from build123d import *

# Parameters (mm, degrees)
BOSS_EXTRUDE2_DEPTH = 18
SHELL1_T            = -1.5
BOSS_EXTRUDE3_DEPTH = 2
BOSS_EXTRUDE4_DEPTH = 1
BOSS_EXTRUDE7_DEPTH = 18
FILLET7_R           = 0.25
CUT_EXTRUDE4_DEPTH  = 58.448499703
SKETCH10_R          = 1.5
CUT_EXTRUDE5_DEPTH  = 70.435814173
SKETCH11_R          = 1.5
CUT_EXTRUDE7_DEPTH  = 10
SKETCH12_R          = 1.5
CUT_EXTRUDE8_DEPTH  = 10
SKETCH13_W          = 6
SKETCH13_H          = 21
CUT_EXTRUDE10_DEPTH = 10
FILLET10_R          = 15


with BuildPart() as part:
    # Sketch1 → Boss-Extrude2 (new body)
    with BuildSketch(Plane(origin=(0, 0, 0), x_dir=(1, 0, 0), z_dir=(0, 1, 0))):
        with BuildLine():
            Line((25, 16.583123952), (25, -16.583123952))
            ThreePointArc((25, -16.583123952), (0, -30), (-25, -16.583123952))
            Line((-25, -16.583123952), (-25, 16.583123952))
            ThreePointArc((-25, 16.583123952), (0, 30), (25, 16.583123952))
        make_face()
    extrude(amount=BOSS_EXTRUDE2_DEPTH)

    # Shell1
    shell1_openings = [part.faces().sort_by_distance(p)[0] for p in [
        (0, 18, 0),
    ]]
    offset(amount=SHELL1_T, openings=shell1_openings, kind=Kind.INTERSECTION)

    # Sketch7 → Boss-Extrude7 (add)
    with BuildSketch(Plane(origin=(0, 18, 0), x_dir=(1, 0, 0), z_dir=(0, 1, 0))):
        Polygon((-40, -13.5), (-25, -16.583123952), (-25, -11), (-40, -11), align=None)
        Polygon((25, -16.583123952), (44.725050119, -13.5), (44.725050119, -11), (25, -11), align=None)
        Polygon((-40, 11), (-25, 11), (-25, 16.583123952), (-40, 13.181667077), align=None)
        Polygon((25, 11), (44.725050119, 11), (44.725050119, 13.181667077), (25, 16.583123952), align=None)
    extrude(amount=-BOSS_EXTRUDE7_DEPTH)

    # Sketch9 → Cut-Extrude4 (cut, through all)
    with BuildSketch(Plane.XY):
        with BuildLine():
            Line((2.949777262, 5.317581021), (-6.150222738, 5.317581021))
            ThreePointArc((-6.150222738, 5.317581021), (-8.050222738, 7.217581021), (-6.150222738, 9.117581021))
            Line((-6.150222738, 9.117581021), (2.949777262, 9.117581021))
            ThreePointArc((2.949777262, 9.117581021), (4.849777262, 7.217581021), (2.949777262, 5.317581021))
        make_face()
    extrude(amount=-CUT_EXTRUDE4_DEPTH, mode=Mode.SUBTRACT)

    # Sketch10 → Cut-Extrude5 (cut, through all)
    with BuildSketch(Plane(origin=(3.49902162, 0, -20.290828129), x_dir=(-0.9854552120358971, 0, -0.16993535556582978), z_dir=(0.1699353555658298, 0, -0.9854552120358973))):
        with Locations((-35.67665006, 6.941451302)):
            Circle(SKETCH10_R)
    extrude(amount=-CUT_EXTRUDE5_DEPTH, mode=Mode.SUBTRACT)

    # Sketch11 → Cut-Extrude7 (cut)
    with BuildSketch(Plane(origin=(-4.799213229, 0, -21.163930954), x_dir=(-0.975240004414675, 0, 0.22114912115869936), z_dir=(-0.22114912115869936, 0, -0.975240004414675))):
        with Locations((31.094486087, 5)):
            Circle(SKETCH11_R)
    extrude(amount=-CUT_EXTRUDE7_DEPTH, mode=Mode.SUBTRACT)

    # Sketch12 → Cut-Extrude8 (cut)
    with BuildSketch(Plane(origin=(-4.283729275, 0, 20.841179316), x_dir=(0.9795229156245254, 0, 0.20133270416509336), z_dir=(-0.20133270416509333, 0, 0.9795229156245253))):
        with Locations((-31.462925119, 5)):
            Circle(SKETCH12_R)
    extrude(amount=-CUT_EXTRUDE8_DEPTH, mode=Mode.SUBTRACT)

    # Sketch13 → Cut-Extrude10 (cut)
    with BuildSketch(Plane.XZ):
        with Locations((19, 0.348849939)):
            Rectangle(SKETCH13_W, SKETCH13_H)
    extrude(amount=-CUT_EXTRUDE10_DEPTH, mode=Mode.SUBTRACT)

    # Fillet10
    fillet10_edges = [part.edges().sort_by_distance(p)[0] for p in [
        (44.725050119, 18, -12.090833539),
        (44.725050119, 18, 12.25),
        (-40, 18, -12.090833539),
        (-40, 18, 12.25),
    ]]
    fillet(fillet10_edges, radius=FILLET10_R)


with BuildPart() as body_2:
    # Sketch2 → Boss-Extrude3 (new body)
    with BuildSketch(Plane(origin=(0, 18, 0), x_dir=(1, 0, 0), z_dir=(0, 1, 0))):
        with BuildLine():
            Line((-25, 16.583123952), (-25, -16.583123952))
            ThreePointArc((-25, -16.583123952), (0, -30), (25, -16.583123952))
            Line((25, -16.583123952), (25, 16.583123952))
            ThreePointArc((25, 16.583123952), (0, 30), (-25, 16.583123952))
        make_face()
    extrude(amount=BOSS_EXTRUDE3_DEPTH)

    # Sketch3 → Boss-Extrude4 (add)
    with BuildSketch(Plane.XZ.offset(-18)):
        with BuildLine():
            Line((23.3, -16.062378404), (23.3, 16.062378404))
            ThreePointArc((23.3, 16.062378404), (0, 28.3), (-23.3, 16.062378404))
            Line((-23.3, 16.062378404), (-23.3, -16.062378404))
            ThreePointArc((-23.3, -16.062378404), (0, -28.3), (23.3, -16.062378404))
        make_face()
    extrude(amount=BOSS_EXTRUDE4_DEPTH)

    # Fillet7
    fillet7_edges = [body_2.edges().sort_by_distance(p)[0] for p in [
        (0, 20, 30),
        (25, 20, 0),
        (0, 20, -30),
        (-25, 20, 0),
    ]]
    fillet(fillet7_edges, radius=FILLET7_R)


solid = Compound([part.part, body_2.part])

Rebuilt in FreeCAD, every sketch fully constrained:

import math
import FreeCAD as App
import Part
import Sketcher

V = App.Vector
Q = App.Units.Quantity


def edges_at(feature, points):
    """Names of the edges that pass closest to the given points."""
    edges = feature.Shape.Edges
    near = lambda p: min(range(len(edges)), key=lambda i: edges[i].distToShape(Part.Vertex(*p))[0])
    return sorted({f"Edge{near(p) + 1}" for p in points})


def faces_at(feature, points):
    """Names of the faces that lie closest to the given points."""
    faces = feature.Shape.Faces
    near = lambda p: min(range(len(faces)), key=lambda i: faces[i].distToShape(Part.Vertex(*p))[0])
    return sorted({f"Face{near(p) + 1}" for p in points})


def add_polygon(sketch, points):
    """Adds a closed chain of lines whose ends are joined by coincident constraints."""
    first, n = sketch.GeometryCount, len(points)
    for a, b in zip(points, points[1:] + points[:1]):
        sketch.addGeometry(Part.LineSegment(App.Vector(*a, 0), App.Vector(*b, 0)), False)
    for i in range(n):
        sketch.addConstraint(Sketcher.Constraint("Coincident", first + i, 2, first + (i + 1) % n, 1))

doc = App.newDocument("Part")
body = doc.addObject("PartDesign::Body", "Body")

sketch1 = doc.addObject("Sketcher::SketchObject", "Sketch")
body.addObject(sketch1)
sketch1.AttachmentSupport = (doc.XZ_Plane, [""])
sketch1.MapMode = "FlatFace"
sketch1.addGeometry(Part.LineSegment(V(25, 17, 0), V(25, -17, 0)), False)
sketch1.addGeometry(Part.ArcOfCircle(Part.Circle(V(0, 0, 0), V(0, 0, 1), 30), math.radians(-146), math.radians(-34)), False)
sketch1.addGeometry(Part.LineSegment(V(-25, -17, 0), V(-25, 17, 0)), False)
sketch1.addGeometry(Part.ArcOfCircle(Part.Circle(V(0, 0, 0), V(0, 0, 1), 30), math.radians(34), math.radians(146)), False)
sketch1.addConstraint(Sketcher.Constraint("Coincident", 0, 2, 1, 2))
sketch1.addConstraint(Sketcher.Constraint("Coincident", 1, 1, 2, 1))
sketch1.addConstraint(Sketcher.Constraint("Coincident", 2, 2, 3, 2))
sketch1.addConstraint(Sketcher.Constraint("Coincident", 3, 1, 0, 1))
sketch1.addConstraint(Sketcher.Constraint("Vertical", 0))
sketch1.addConstraint(Sketcher.Constraint("Vertical", 2))
sketch1.addConstraint(Sketcher.Constraint("Coincident", 1, 3, -1, 1))
sketch1.addConstraint(Sketcher.Constraint("Coincident", 3, 3, -1, 1))
sketch1.addConstraint(Sketcher.Constraint("Equal", 1, 3))
sketch1.addConstraint(Sketcher.Constraint("Horizontal", 0, 2, 1, 1))
sketch1.addConstraint(Sketcher.Constraint("Radius", 1, Q("30 mm")))
sketch1.addConstraint(Sketcher.Constraint("DistanceX", -1, 1, 0, 2, Q("25 mm")))
pad1 = doc.addObject("PartDesign::Pad", "Pad")
body.addObject(pad1)
pad1.Profile = sketch1
pad1.Length = 18
pad1.Reversed = True
doc.recompute()

thickness = doc.addObject("PartDesign::Thickness", "Thickness")
body.addObject(thickness)
thickness.Base = (pad1, faces_at(pad1, [(0, 18, 0)]))
thickness.Value = 1.5
thickness.Reversed = True
thickness.Join = "Intersection"

sketch2 = doc.addObject("Sketcher::SketchObject", "Sketch001")
body.addObject(sketch2)
sketch2.AttachmentSupport = (doc.XZ_Plane, [""])
sketch2.MapMode = "FlatFace"
sketch2.AttachmentOffset = App.Placement(V(0, 0, -18), App.Rotation())
add_polygon(sketch2, [(-40, 13.5), (-25, 16.6), (-25, 11), (-40, 11)])
add_polygon(sketch2, [(25, 16.6), (44.7, 13.5), (44.7, 11), (25, 11)])
add_polygon(sketch2, [(-40, -11), (-25, -11), (-25, -16.6), (-40, -13.2)])
add_polygon(sketch2, [(25, -11), (44.7, -11), (44.7, -13.2), (25, -16.6)])
sketch2.addConstraint(Sketcher.Constraint("Vertical", 1))
sketch2.addConstraint(Sketcher.Constraint("Horizontal", 2))
sketch2.addConstraint(Sketcher.Constraint("Vertical", 3))
sketch2.addConstraint(Sketcher.Constraint("Vertical", 5))
sketch2.addConstraint(Sketcher.Constraint("Horizontal", 6))
sketch2.addConstraint(Sketcher.Constraint("Vertical", 7))
sketch2.addConstraint(Sketcher.Constraint("Horizontal", 8))
sketch2.addConstraint(Sketcher.Constraint("Vertical", 9))
sketch2.addConstraint(Sketcher.Constraint("Vertical", 11))
sketch2.addConstraint(Sketcher.Constraint("Horizontal", 12))
sketch2.addConstraint(Sketcher.Constraint("Vertical", 13))
sketch2.addConstraint(Sketcher.Constraint("Vertical", 15))
sketch2.addConstraint(Sketcher.Constraint("Symmetric", 6, 2, 8, 2, -1, 1))
sketch2.addConstraint(Sketcher.Constraint("Symmetric", 0, 2, 14, 2, -1, 1))
sketch2.addConstraint(Sketcher.Constraint("Symmetric", 1, 2, 6, 2, -2))
sketch2.addConstraint(Sketcher.Constraint("Symmetric", 5, 2, 12, 2, -1))
sketch2.addConstraint(Sketcher.Constraint("Horizontal", 3, 2, 4, 2))
sketch2.addConstraint(Sketcher.Constraint("Horizontal", 0, 2, 7, 2))
sketch2.addConstraint(Sketcher.Constraint("Horizontal", 10, 2, 13, 2))
sketch2.addConstraint(Sketcher.Constraint("Horizontal", 9, 2, 14, 2))
sketch2.addConstraint(Sketcher.Constraint("Vertical", 3, 2, 10, 2))
sketch2.addConstraint(Sketcher.Constraint("DistanceX", 2, 2, 2, 1, Q("15 mm")))
sketch2.addConstraint(Sketcher.Constraint("DistanceY", 3, 1, 3, 2, Q("2.5 mm")))
sketch2.addConstraint(Sketcher.Constraint("DistanceX", 0, 2, -1, 1, Q("25 mm")))
sketch2.addConstraint(Sketcher.Constraint("DistanceY", -1, 1, 1, 2, Q("11 mm")))
sketch2.addConstraint(Sketcher.Constraint("DistanceX", 6, 2, 6, 1, Q("19.72505 mm")))
sketch2.addConstraint(Sketcher.Constraint("Distance", 4, Q("19.96455 mm")))
sketch2.addConstraint(Sketcher.Constraint("Distance", 10, Q("15.380829 mm")))
pad2 = doc.addObject("PartDesign::Pad", "Pad001")
body.addObject(pad2)
pad2.Profile = sketch2
pad2.Length = 18

sketch3 = doc.addObject("Sketcher::SketchObject", "Sketch002")
body.addObject(sketch3)
sketch3.AttachmentSupport = (doc.XY_Plane, [""])
sketch3.MapMode = "FlatFace"
sketch3.addGeometry(Part.LineSegment(V(-6.2, 5.3, 0), V(2.9, 5.3, 0)), False)
sketch3.addGeometry(Part.ArcOfCircle(Part.Circle(V(2.9, 7.2, 0), V(0, 0, 1), 1.9), math.radians(-90), math.radians(90)), False)
sketch3.addGeometry(Part.LineSegment(V(2.9, 9.1, 0), V(-6.2, 9.1, 0)), False)
sketch3.addGeometry(Part.ArcOfCircle(Part.Circle(V(-6.2, 7.2, 0), V(0, 0, 1), 1.9), math.radians(90), math.radians(270)), False)
sketch3.addConstraint(Sketcher.Constraint("Tangent", 0, 2, 1, 1))
sketch3.addConstraint(Sketcher.Constraint("Tangent", 1, 2, 2, 1))
sketch3.addConstraint(Sketcher.Constraint("Tangent", 2, 2, 3, 1))
sketch3.addConstraint(Sketcher.Constraint("Tangent", 3, 2, 0, 1))
sketch3.addConstraint(Sketcher.Constraint("Horizontal", 0))
sketch3.addConstraint(Sketcher.Constraint("Horizontal", 2))
sketch3.addConstraint(Sketcher.Constraint("Radius", 1, Q("1.9 mm")))
sketch3.addConstraint(Sketcher.Constraint("DistanceX", 0, 1, 0, 2, Q("9.1 mm")))
sketch3.addConstraint(Sketcher.Constraint("DistanceY", -1, 1, 1, 3, Q("7.217581 mm")))
sketch3.addConstraint(Sketcher.Constraint("DistanceX", -1, 1, 1, 3, Q("2.949777 mm")))
pocket1 = doc.addObject("PartDesign::Pocket", "Pocket")
body.addObject(pocket1)
pocket1.Profile = sketch3
pocket1.Type = "ThroughAll"

sketch4 = doc.addObject("Sketcher::SketchObject", "Sketch003")
body.addObject(sketch4)
sketch4.Placement = App.Placement(V(3.499022, 0, -20.290828), App.Rotation(V(-0.985455212, 0, -0.169935356), V(0, 1, 0), V(0.169935356, 0, -0.985455212), "ZXY"))
sketch4.addGeometry(Part.Circle(V(-35.7, 6.9, 0), V(0, 0, 1), 1.5), False)
sketch4.addConstraint(Sketcher.Constraint("Diameter", 0, Q("3 mm")))
sketch4.addConstraint(Sketcher.Constraint("DistanceX", 0, 3, -1, 1, Q("35.67665 mm")))
sketch4.addConstraint(Sketcher.Constraint("DistanceY", -1, 1, 0, 3, Q("6.941451 mm")))
pocket2 = doc.addObject("PartDesign::Pocket", "Pocket001")
body.addObject(pocket2)
pocket2.Profile = sketch4
pocket2.Type = "ThroughAll"

sketch5 = doc.addObject("Sketcher::SketchObject", "Sketch004")
body.addObject(sketch5)
sketch5.Placement = App.Placement(V(-4.799213, 0, -21.163931), App.Rotation(V(-0.975240004, 0, 0.221149121), V(0, 0.999999999, 0), V(-0.221149121, 0, -0.975240004), "ZXY"))
sketch5.addGeometry(Part.Circle(V(31.1, 5, 0), V(0, 0, 1), 1.5), False)
sketch5.addConstraint(Sketcher.Constraint("Diameter", 0, Q("3 mm")))
sketch5.addConstraint(Sketcher.Constraint("DistanceY", -1, 1, 0, 3, Q("5 mm")))
sketch5.addConstraint(Sketcher.Constraint("DistanceX", -1, 1, 0, 3, Q("31.094486 mm")))
pocket3 = doc.addObject("PartDesign::Pocket", "Pocket002")
body.addObject(pocket3)
pocket3.Profile = sketch5
pocket3.Length = 10

sketch6 = doc.addObject("Sketcher::SketchObject", "Sketch005")
body.addObject(sketch6)
sketch6.Placement = App.Placement(V(-4.283729, 0, 20.841179), App.Rotation(V(0.979522916, 0, 0.201332704), V(0, 1.000000001, 0), V(-0.201332704, 0, 0.979522916), "ZXY"))
sketch6.addGeometry(Part.Circle(V(-31.5, 5, 0), V(0, 0, 1), 1.5), False)
sketch6.addConstraint(Sketcher.Constraint("Diameter", 0, Q("3 mm")))
sketch6.addConstraint(Sketcher.Constraint("DistanceY", -1, 1, 0, 3, Q("5 mm")))
sketch6.addConstraint(Sketcher.Constraint("DistanceX", 0, 3, -1, 1, Q("31.462925 mm")))
pocket4 = doc.addObject("PartDesign::Pocket", "Pocket003")
body.addObject(pocket4)
pocket4.Profile = sketch6
pocket4.Length = 10

sketch7 = doc.addObject("Sketcher::SketchObject", "Sketch006")
body.addObject(sketch7)
sketch7.AttachmentSupport = (doc.XZ_Plane, [""])
sketch7.MapMode = "FlatFace"
add_polygon(sketch7, [(16, 11), (16, -10), (22, -10), (22, 11)])
sketch7.addConstraint(Sketcher.Constraint("Vertical", 0))
sketch7.addConstraint(Sketcher.Constraint("Horizontal", 1))
sketch7.addConstraint(Sketcher.Constraint("Vertical", 2))
sketch7.addConstraint(Sketcher.Constraint("Horizontal", 3))
sketch7.addConstraint(Sketcher.Constraint("DistanceX", 1, 1, 1, 2, Q("6 mm")))
sketch7.addConstraint(Sketcher.Constraint("DistanceY", 0, 2, 0, 1, Q("21 mm")))
sketch7.addConstraint(Sketcher.Constraint("DistanceX", -1, 1, 0, 2, Q("16 mm")))
sketch7.addConstraint(Sketcher.Constraint("DistanceY", 0, 2, -1, 1, Q("10.15115 mm")))
pocket5 = doc.addObject("PartDesign::Pocket", "Pocket004")
body.addObject(pocket5)
pocket5.Profile = sketch7
pocket5.Length = 10
doc.recompute()

fillet = doc.addObject("PartDesign::Fillet", "Fillet")
body.addObject(fillet)
fillet.Base = (pocket5, edges_at(pocket5, [
    (44.725, 18, -12.091),
    (44.725, 18, 12.25),
    (-40, 18, -12.091),
    (-40, 18, 12.25),
]))
fillet.Radius = 15
body2 = doc.addObject("PartDesign::Body", "Body001")

sketch8 = doc.addObject("Sketcher::SketchObject", "Sketch007")
body2.addObject(sketch8)
sketch8.AttachmentSupport = (doc.getObject("XZ_Plane001"), [""])
sketch8.MapMode = "FlatFace"
sketch8.AttachmentOffset = App.Placement(V(0, 0, -18), App.Rotation())
sketch8.addGeometry(Part.LineSegment(V(-25, -17, 0), V(-25, 17, 0)), False)
sketch8.addGeometry(Part.ArcOfCircle(Part.Circle(V(0, 0, 0), V(0, 0, 1), 30), math.radians(34), math.radians(146)), False)
sketch8.addGeometry(Part.LineSegment(V(25, 17, 0), V(25, -17, 0)), False)
sketch8.addGeometry(Part.ArcOfCircle(Part.Circle(V(0, 0, 0), V(0, 0, 1), 30), math.radians(-146), math.radians(-34)), False)
sketch8.addConstraint(Sketcher.Constraint("Coincident", 0, 2, 1, 2))
sketch8.addConstraint(Sketcher.Constraint("Coincident", 1, 1, 2, 1))
sketch8.addConstraint(Sketcher.Constraint("Coincident", 2, 2, 3, 2))
sketch8.addConstraint(Sketcher.Constraint("Coincident", 3, 1, 0, 1))
sketch8.addConstraint(Sketcher.Constraint("Vertical", 0))
sketch8.addConstraint(Sketcher.Constraint("Vertical", 2))
sketch8.addConstraint(Sketcher.Constraint("Coincident", 1, 3, -1, 1))
sketch8.addConstraint(Sketcher.Constraint("Coincident", 3, 3, -1, 1))
sketch8.addConstraint(Sketcher.Constraint("Equal", 1, 3))
sketch8.addConstraint(Sketcher.Constraint("Horizontal", 0, 2, 1, 1))
sketch8.addConstraint(Sketcher.Constraint("Radius", 1, Q("30 mm")))
sketch8.addConstraint(Sketcher.Constraint("DistanceX", 0, 2, -1, 1, Q("25 mm")))
pad3 = doc.addObject("PartDesign::Pad", "Pad002")
body2.addObject(pad3)
pad3.Profile = sketch8
pad3.Length = 2
pad3.Reversed = True

sketch9 = doc.addObject("Sketcher::SketchObject", "Sketch008")
body2.addObject(sketch9)
sketch9.AttachmentSupport = (doc.getObject("XZ_Plane001"), [""])
sketch9.MapMode = "FlatFace"
sketch9.AttachmentOffset = App.Placement(V(0, 0, -18), App.Rotation())
sketch9.addGeometry(Part.LineSegment(V(23, -16, 0), V(23, 16, 0)), False)
sketch9.addGeometry(Part.ArcOfCircle(Part.Circle(V(0, 0, 0), V(0, 0, 1), 28), math.radians(35), math.radians(145)), False)
sketch9.addGeometry(Part.LineSegment(V(-23, 16, 0), V(-23, -16, 0)), False)
sketch9.addGeometry(Part.ArcOfCircle(Part.Circle(V(0, 0, 0), V(0, 0, 1), 28), math.radians(-145), math.radians(-35)), False)
sketch9.addConstraint(Sketcher.Constraint("Coincident", 0, 2, 1, 1))
sketch9.addConstraint(Sketcher.Constraint("Coincident", 1, 2, 2, 1))
sketch9.addConstraint(Sketcher.Constraint("Coincident", 2, 2, 3, 1))
sketch9.addConstraint(Sketcher.Constraint("Coincident", 3, 2, 0, 1))
sketch9.addConstraint(Sketcher.Constraint("Vertical", 0))
sketch9.addConstraint(Sketcher.Constraint("Vertical", 2))
sketch9.addConstraint(Sketcher.Constraint("Coincident", 1, 3, -1, 1))
sketch9.addConstraint(Sketcher.Constraint("Coincident", 3, 3, -1, 1))
sketch9.addConstraint(Sketcher.Constraint("Equal", 1, 3))
sketch9.addConstraint(Sketcher.Constraint("Horizontal", 0, 2, 1, 2))
sketch9.addConstraint(Sketcher.Constraint("Radius", 1, Q("28.3 mm")))
sketch9.addConstraint(Sketcher.Constraint("DistanceX", -1, 1, 0, 2, Q("23.3 mm")))
pad4 = doc.addObject("PartDesign::Pad", "Pad003")
body2.addObject(pad4)
pad4.Profile = sketch9
pad4.Length = 1
doc.recompute()

fillet2 = doc.addObject("PartDesign::Fillet", "Fillet001")
body2.addObject(fillet2)
fillet2.Base = (pad4, edges_at(pad4, [
    (0, 20, 30),
    (25, 20, 0),
    (0, 20, -30),
    (-25, 20, 0),
]))
fillet2.Radius = 0.25

doc.recompute()
